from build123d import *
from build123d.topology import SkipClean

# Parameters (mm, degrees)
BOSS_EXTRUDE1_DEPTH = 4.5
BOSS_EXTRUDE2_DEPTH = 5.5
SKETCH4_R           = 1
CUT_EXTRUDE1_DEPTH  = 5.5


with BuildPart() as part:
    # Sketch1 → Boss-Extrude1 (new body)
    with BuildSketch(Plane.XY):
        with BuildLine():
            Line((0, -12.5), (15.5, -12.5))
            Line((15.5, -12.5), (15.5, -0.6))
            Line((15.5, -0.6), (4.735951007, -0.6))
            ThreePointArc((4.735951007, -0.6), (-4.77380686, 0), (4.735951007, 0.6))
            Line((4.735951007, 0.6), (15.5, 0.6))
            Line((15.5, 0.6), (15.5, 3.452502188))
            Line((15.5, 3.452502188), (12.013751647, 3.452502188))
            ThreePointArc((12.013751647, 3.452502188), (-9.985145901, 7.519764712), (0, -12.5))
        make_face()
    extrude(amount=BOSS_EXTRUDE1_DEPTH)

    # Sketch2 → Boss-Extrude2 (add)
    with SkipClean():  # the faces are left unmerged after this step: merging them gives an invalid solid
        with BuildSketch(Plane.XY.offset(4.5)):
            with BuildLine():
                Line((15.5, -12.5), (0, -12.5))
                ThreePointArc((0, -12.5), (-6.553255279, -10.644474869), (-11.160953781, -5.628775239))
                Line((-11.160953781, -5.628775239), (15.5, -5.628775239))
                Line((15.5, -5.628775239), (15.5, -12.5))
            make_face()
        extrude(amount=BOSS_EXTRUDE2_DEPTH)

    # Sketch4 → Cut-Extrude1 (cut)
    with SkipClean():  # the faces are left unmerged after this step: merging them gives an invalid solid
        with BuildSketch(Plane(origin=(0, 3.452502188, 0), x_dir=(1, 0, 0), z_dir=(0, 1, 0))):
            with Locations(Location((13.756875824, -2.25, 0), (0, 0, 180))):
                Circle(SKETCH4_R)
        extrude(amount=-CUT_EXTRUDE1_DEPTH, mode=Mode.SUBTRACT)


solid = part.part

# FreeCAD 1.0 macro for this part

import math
import FreeCAD as App
import Part
import Sketcher
from FreeCAD import Vector
Q = App.Units.Quantity

doc = App.newDocument("Part")
body = doc.addObject("PartDesign::Body", "Body")

sketch1 = body.newObject("Sketcher::SketchObject", "Sketch")
sketch1.AttachmentSupport = (doc.getObject("XY_Plane"), [""])
sketch1.MapMode = "FlatFace"
sketch1.addGeometry([
    Part.LineSegment(Vector(0, -12.5, 0), Vector(15.5, -12.5, 0)),
    Part.LineSegment(Vector(15.5, -12.5, 0), Vector(15.5, -0.6, 0)),
    Part.LineSegment(Vector(15.5, -0.6, 0), Vector(4.735951, -0.6, 0)),
    Part.ArcOfCircle(Part.Circle(Vector(0, 0, 0), Vector(0, 0, 1), 4.773807), math.radians(7.220365), math.radians(352.779635)),
    Part.LineSegment(Vector(4.735951, 0.6, 0), Vector(15.5, 0.6, 0)),
    Part.LineSegment(Vector(15.5, 0.6, 0), Vector(15.5, 3.452502, 0)),
    Part.LineSegment(Vector(15.5, 3.452502, 0), Vector(12.013752, 3.452502, 0)),
    Part.ArcOfCircle(Part.Circle(Vector(0, 0, 0), Vector(0, 0, 1), 12.5), math.radians(16.03355), math.radians(270)),
], False)
sketch1.addConstraint([
    Sketcher.Constraint("Coincident", 0, 2, 1, 1),
    Sketcher.Constraint("Coincident", 1, 2, 2, 1),
    Sketcher.Constraint("Coincident", 2, 2, 3, 2),
    Sketcher.Constraint("Coincident", 3, 1, 4, 1),
    Sketcher.Constraint("Coincident", 4, 2, 5, 1),
    Sketcher.Constraint("Coincident", 5, 2, 6, 1),
    Sketcher.Constraint("Coincident", 6, 2, 7, 1),
    Sketcher.Constraint("Tangent", 7, 2, 0, 1),
    Sketcher.Constraint("Horizontal", 0),
    Sketcher.Constraint("Vertical", 1),
    Sketcher.Constraint("Horizontal", 2),
    Sketcher.Constraint("Horizontal", 4),
    Sketcher.Constraint("Vertical", 5),
    Sketcher.Constraint("Horizontal", 6),
    Sketcher.Constraint("Coincident", 3, 3, -1, 1),
    Sketcher.Constraint("Coincident", 7, 3, -1, 1),
    Sketcher.Constraint("Symmetric", 1, 2, 4, 2, -1),
    Sketcher.Constraint("Radius", 7, Q("12.5 mm")),
    Sketcher.Constraint("DistanceX", 0, 1, 0, 2, Q("15.5 mm")),
    Sketcher.Constraint("DistanceY", 1, 1, 1, 2, Q("11.9 mm")),
    Sketcher.Constraint("Radius", 3, Q("4.773807 mm")),
    Sketcher.Constraint("DistanceX", 6, 2, 6, 1, Q("3.486248 mm")),
])
pad1 = body.newObject("PartDesign::Pad", "Pad")
pad1.Profile = sketch1
pad1.Length = 4.5

sketch2 = body.newObject("Sketcher::SketchObject", "Sketch001")
sketch2.AttachmentSupport = (doc.getObject("XY_Plane"), [""])
sketch2.MapMode = "FlatFace"
sketch2.AttachmentOffset = App.Placement(Vector(0, 0, 4.5), App.Rotation())
sketch2.addGeometry([
    Part.LineSegment(Vector(0, -12.5, 0), Vector(15.5, -12.5, 0)),
    Part.LineSegment(Vector(15.5, -12.5, 0), Vector(15.5, -5.628775, 0)),
    Part.LineSegment(Vector(15.5, -5.628775, 0), Vector(-11.160954, -5.628775, 0)),
    Part.ArcOfCircle(Part.Circle(Vector(0, 0, 0), Vector(0, 0, 1), 12.5), math.radians(-153.236937), math.radians(-90)),
], False)
sketch2.addConstraint([
    Sketcher.Constraint("Coincident", 0, 2, 1, 1),
    Sketcher.Constraint("Coincident", 1, 2, 2, 1),
    Sketcher.Constraint("Coincident", 2, 2, 3, 1),
    Sketcher.Constraint("Tangent", 3, 2, 0, 1),
    Sketcher.Constraint("Horizontal", 0),
    Sketcher.Constraint("Vertical", 1),
    Sketcher.Constraint("Horizontal", 2),
    Sketcher.Constraint("Coincident", 3, 3, -1, 1),
    Sketcher.Constraint("Radius", 3, Q("12.5 mm")),
    Sketcher.Constraint("DistanceX", 0, 1, 0, 2, Q("15.5 mm")),
    Sketcher.Constraint("DistanceX", 2, 2, 2, 1, Q("26.660954 mm")),
])
pad2 = body.newObject("PartDesign::Pad", "Pad001")
pad2.Profile = sketch2
pad2.Length = 5.5

sketch3 = body.newObject("Sketcher::SketchObject", "Sketch002")
sketch3.AttachmentSupport = (doc.getObject("XZ_Plane"), [""])
sketch3.MapMode = "FlatFace"
sketch3.AttachmentOffset = App.Placement(Vector(0, 0, -3.452502), App.Rotation())
sketch3.addGeometry(Part.Circle(Vector(13.756876, 2.25, 0), Vector(0, 0, 1), 1), False)
sketch3.addConstraint([
    Sketcher.Constraint("Diameter", 0, Q("2 mm")),
    Sketcher.Constraint("DistanceY", -1, 1, 0, 3, Q("2.25 mm")),
    Sketcher.Constraint("DistanceX", -1, 1, 0, 3, Q("13.756876 mm")),
])
pocket1 = body.newObject("PartDesign::Pocket", "Pocket")
pocket1.Profile = sketch3
pocket1.Length = 5.5
pocket1.Reversed = True

doc.recompute()
